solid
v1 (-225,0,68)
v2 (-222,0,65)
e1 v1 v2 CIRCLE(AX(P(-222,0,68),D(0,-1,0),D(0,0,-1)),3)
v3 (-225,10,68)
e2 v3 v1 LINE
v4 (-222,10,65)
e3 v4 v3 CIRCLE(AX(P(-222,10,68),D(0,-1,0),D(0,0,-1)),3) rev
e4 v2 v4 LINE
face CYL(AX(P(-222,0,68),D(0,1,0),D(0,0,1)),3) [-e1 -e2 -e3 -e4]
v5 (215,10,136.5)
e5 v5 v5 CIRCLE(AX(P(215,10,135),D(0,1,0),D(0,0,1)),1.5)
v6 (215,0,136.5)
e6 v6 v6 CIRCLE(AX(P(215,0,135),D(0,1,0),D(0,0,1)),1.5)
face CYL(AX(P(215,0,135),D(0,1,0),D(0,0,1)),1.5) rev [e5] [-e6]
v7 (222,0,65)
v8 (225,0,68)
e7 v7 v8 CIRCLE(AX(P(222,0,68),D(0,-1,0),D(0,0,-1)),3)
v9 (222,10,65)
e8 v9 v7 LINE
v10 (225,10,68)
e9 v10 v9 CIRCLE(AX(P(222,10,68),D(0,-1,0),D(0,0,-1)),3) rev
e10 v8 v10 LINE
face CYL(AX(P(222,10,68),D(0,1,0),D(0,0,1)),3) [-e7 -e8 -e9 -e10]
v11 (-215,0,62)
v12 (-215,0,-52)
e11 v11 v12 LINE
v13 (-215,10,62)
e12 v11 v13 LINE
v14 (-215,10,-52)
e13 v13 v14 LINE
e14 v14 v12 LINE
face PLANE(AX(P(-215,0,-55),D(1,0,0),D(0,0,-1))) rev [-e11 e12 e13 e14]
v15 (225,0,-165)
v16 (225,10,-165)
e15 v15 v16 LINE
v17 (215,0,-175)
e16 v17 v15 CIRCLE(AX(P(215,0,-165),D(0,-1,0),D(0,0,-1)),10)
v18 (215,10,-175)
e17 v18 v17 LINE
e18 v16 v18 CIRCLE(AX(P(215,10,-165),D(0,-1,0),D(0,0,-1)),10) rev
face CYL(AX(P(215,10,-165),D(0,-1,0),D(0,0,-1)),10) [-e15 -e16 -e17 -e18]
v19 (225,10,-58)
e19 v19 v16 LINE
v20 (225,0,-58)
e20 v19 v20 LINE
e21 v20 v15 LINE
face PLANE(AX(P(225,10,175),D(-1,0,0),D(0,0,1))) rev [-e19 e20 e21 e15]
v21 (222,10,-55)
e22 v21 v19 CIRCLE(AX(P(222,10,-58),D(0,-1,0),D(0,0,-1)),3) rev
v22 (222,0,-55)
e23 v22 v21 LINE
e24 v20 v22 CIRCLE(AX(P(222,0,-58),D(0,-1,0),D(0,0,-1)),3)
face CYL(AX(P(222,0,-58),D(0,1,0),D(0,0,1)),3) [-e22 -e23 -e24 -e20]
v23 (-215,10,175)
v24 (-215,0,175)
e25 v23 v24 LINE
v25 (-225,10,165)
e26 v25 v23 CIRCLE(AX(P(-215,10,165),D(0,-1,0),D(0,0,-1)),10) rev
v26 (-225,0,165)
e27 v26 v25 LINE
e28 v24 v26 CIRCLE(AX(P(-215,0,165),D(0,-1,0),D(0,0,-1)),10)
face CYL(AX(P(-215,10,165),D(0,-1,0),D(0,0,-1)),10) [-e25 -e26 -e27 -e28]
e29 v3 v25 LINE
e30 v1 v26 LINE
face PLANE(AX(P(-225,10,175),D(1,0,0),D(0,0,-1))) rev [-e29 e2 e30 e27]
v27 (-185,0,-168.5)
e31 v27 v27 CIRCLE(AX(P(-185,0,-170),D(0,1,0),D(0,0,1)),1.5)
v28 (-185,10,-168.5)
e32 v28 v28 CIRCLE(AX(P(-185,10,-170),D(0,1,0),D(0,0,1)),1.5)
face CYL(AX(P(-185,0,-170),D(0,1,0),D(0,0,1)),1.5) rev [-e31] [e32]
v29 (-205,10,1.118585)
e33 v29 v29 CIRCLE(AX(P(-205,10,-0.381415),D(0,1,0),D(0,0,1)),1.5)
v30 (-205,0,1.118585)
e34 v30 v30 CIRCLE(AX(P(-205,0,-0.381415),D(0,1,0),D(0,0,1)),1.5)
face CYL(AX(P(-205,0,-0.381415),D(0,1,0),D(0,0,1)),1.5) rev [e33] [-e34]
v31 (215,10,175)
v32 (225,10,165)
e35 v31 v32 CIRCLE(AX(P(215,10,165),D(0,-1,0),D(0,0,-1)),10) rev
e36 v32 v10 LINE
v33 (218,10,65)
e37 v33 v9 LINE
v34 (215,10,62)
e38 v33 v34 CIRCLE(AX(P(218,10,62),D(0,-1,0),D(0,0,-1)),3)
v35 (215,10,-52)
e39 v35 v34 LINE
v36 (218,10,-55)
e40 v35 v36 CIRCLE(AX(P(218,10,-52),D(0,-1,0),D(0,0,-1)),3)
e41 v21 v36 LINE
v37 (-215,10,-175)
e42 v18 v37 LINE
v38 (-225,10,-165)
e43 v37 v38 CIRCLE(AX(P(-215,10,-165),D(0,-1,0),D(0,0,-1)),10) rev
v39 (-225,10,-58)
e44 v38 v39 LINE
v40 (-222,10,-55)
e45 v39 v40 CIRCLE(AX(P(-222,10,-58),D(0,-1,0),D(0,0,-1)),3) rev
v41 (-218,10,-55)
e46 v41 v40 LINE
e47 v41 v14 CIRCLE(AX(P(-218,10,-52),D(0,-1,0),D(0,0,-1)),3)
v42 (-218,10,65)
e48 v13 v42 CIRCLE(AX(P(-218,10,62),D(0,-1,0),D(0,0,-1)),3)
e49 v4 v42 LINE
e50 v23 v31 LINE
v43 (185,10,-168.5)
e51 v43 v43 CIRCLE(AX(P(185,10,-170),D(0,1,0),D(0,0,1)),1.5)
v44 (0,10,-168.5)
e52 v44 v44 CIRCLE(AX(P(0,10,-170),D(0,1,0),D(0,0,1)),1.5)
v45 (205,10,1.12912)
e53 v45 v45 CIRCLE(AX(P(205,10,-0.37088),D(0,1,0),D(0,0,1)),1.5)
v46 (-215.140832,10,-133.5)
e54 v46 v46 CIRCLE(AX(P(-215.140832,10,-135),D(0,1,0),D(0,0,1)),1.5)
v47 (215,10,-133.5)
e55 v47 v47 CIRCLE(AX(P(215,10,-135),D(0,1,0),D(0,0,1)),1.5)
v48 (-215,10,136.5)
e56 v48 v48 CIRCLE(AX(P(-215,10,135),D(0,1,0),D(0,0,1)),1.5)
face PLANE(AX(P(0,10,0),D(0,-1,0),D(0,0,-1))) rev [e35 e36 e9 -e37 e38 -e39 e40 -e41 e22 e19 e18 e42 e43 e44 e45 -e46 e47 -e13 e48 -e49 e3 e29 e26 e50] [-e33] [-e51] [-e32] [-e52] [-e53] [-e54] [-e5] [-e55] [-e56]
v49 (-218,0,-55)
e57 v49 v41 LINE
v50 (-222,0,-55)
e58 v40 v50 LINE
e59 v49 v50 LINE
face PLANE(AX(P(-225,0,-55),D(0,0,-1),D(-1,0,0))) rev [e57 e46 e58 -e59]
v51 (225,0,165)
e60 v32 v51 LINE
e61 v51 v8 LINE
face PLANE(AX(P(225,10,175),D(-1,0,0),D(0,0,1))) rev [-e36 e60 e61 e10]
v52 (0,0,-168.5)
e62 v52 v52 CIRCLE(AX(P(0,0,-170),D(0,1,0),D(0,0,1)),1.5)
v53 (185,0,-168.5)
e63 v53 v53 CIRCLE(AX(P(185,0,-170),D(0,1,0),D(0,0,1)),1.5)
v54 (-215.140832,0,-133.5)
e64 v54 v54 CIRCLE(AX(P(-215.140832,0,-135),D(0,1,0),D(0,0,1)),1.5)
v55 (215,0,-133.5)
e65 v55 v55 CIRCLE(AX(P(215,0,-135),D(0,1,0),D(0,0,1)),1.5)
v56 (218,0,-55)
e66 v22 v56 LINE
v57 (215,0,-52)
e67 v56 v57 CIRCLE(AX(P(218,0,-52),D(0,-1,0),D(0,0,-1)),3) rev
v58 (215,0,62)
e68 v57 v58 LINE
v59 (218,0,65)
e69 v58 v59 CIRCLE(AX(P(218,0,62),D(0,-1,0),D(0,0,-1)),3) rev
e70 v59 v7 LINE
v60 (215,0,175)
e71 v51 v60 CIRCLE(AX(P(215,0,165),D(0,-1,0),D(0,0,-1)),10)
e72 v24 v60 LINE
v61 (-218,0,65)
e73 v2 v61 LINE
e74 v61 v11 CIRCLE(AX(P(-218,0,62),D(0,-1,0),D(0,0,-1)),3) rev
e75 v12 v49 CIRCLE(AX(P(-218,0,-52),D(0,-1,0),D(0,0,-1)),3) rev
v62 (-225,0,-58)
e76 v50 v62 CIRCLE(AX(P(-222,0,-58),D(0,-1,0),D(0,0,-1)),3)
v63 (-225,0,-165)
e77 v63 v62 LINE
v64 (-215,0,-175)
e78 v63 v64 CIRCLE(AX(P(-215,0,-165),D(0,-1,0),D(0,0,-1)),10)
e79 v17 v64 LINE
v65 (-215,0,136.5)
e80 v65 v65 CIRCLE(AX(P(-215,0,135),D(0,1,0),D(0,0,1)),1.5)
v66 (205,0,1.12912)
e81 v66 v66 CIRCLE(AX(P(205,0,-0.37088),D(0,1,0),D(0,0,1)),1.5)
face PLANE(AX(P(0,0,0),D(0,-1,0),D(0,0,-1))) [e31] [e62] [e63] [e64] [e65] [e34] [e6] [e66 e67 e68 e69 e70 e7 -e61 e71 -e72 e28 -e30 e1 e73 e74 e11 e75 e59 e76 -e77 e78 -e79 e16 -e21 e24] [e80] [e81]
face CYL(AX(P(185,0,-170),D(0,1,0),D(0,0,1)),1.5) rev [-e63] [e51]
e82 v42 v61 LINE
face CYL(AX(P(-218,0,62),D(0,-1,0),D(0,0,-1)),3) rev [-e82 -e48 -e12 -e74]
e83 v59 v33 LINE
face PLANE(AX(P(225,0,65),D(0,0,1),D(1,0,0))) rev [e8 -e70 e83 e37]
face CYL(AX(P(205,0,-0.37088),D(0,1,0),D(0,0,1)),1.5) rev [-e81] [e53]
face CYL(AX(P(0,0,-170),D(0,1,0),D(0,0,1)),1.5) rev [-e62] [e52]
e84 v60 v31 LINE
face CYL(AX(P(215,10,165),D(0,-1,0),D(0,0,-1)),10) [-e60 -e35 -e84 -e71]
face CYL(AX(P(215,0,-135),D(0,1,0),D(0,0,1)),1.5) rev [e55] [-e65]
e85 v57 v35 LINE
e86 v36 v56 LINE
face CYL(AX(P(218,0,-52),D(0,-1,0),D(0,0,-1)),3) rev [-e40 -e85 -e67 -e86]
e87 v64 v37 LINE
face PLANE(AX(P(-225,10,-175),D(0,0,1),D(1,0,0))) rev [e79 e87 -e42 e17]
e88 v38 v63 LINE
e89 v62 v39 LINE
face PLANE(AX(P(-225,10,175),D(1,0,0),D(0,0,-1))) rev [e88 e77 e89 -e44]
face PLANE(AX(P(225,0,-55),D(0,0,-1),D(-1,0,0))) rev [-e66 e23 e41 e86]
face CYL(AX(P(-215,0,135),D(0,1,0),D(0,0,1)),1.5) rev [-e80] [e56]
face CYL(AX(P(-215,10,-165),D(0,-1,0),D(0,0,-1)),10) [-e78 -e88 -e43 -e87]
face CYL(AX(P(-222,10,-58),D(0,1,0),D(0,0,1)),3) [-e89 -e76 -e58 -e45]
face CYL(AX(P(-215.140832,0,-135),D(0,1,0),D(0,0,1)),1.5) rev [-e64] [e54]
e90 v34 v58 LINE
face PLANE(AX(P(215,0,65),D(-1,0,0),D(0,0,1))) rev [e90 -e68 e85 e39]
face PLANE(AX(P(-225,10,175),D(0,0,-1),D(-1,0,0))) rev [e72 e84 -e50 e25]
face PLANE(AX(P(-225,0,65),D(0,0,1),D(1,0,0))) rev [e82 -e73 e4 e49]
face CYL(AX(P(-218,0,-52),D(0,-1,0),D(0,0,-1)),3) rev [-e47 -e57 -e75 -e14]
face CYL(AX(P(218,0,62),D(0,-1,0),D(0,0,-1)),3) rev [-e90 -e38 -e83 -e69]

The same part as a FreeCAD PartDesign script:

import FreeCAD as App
import Part
import Sketcher
Q = App.Units.Quantity


def edges_at(feature, points):
    """Names of the edges that pass closest to the given points."""
    edges = feature.Shape.Edges
    near = lambda p: min(range(len(edges)), key=lambda i: edges[i].distToShape(Part.Vertex(*p))[0])
    return sorted({f"Edge{near(p) + 1}" for p in points})

doc = App.newDocument("Part")
body = doc.addObject("PartDesign::Body", "Body")

# Sketch on XZ plane
sketch1 = doc.addObject("Sketcher::SketchObject", "Sketch")
body.addObject(sketch1)
sketch1.AttachmentSupport = (doc.XZ_Plane, [""])
sketch1.MapMode = "FlatFace"
sketch1.addGeometry([
    Part.LineSegment(App.Vector(-225, -175, 0), App.Vector(-225, 175, 0)),
    Part.LineSegment(App.Vector(-225, 175, 0), App.Vector(225, 175, 0)),
    Part.LineSegment(App.Vector(225, 175, 0), App.Vector(225, -175, 0)),
    Part.LineSegment(App.Vector(225, -175, 0), App.Vector(-225, -175, 0)),
], False)
sketch1.addConstraint([
    Sketcher.Constraint("Coincident", 0, 2, 1, 1),
    Sketcher.Constraint("Coincident", 1, 2, 2, 1),
    Sketcher.Constraint("Coincident", 2, 2, 3, 1),
    Sketcher.Constraint("Coincident", 3, 2, 0, 1),
    Sketcher.Constraint("Vertical", 0),
    Sketcher.Constraint("Horizontal", 1),
    Sketcher.Constraint("Vertical", 2),
    Sketcher.Constraint("Horizontal", 3),
    Sketcher.Constraint("Symmetric", 0, 2, 2, 2, -1, 1),
    Sketcher.Constraint("DistanceX", 1, 1, 1, 2, Q("450 mm")),
    Sketcher.Constraint("DistanceY", 0, 1, 0, 2, Q("350 mm")),
])
pad1 = doc.addObject("PartDesign::Pad", "Pad")
body.addObject(pad1)
pad1.Profile = sketch1
pad1.Length = 10
pad1.Reversed = True

# Sketch on XZ plane
sketch2 = doc.addObject("Sketcher::SketchObject", "Sketch001")
body.addObject(sketch2)
sketch2.AttachmentSupport = (doc.XZ_Plane, [""])
sketch2.MapMode = "FlatFace"
sketch2.AttachmentOffset = App.Placement(App.Vector(0, 0, -10), App.Rotation())
sketch2.addGeometry([
    Part.Circle(App.Vector(-215, 135, 0), App.Vector(0, 0, 1), 3),  # 0
    Part.Circle(App.Vector(-205, -0.4, 0), App.Vector(0, 0, 1), 3),  # 1
    Part.Circle(App.Vector(-215, -135, 0), App.Vector(0, 0, 1), 3),  # 2
    Part.Circle(App.Vector(215, -135, 0), App.Vector(0, 0, 1), 3),  # 3
    Part.Circle(App.Vector(205, 0, 0), App.Vector(0, 0, 1), 3),  # 4
    Part.Circle(App.Vector(215, 135, 0), App.Vector(0, 0, 1), 3),  # 5
    Part.Circle(App.Vector(-185, -170, 0), App.Vector(0, 0, 1), 3),  # 6
    Part.Circle(App.Vector(0, -170, 0), App.Vector(0, 0, 1), 3),  # 7
    Part.Circle(App.Vector(185, -170, 0), App.Vector(0, 0, 1), 3),  # 8
], False)
sketch2.addConstraint([
    Sketcher.Constraint("Equal", 0, 1),
    Sketcher.Constraint("Equal", 1, 2),
    Sketcher.Constraint("Equal", 2, 3),
    Sketcher.Constraint("Equal", 3, 4),
    Sketcher.Constraint("Equal", 4, 5),
    Sketcher.Constraint("Equal", 5, 6),
    Sketcher.Constraint("Equal", 6, 7),
    Sketcher.Constraint("Equal", 7, 8),
    Sketcher.Constraint("Symmetric", 0, 3, 3, 3, -1, 1),
    Sketcher.Constraint("Symmetric", 2, 3, 5, 3, -1, 1),
    Sketcher.Constraint("Symmetric", 2, 3, 3, 3, -2),
    Sketcher.Constraint("Symmetric", 6, 3, 8, 3, -2),
    Sketcher.Constraint("PointOnObject", 4, 3, -1),
    Sketcher.Constraint("PointOnObject", 7, 3, -2),
    Sketcher.Constraint("Horizontal", 6, 3, 7, 3),
    Sketcher.Constraint("Diameter", 0, Q("6 mm")),
    Sketcher.Constraint("DistanceX", 0, 3, -1, 1, Q("215 mm")),
    Sketcher.Constraint("DistanceY", -1, 1, 0, 3, Q("135 mm")),
    Sketcher.Constraint("DistanceX", 1, 3, -1, 1, Q("205 mm")),
    Sketcher.Constraint("DistanceX", -1, 1, 4, 3, Q("205 mm")),
    Sketcher.Constraint("DistanceX", 6, 3, -1, 1, Q("185 mm")),
    Sketcher.Constraint("DistanceY", 6, 3, -1, 1, Q("170 mm")),
    Sketcher.Constraint("DistanceY", 1, 3, -1, 1, Q("0.37088 mm")),
])
pocket1 = doc.addObject("PartDesign::Pocket", "Pocket")
body.addObject(pocket1)
pocket1.Profile = sketch2
pocket1.Length = 10
pocket1.Reversed = True

# Sketch on XZ plane
sketch3 = doc.addObject("Sketcher::SketchObject", "Sketch002")
body.addObject(sketch3)
sketch3.AttachmentSupport = (doc.XZ_Plane, [""])
sketch3.MapMode = "FlatFace"
sketch3.AttachmentOffset = App.Placement(App.Vector(0, 0, -10), App.Rotation())
sketch3.addGeometry([
    Part.LineSegment(App.Vector(-225, -55, 0), App.Vector(-225, 65, 0)),  # 0
    Part.LineSegment(App.Vector(-225, 65, 0), App.Vector(-215, 65, 0)),  # 1
    Part.LineSegment(App.Vector(-215, 65, 0), App.Vector(-215, -55, 0)),  # 2
    Part.LineSegment(App.Vector(-215, -55, 0), App.Vector(-225, -55, 0)),  # 3
    Part.LineSegment(App.Vector(215, -55, 0), App.Vector(215, 65, 0)),  # 4
    Part.LineSegment(App.Vector(215, 65, 0), App.Vector(225, 65, 0)),  # 5
    Part.LineSegment(App.Vector(225, 65, 0), App.Vector(225, -55, 0)),  # 6
    Part.LineSegment(App.Vector(225, -55, 0), App.Vector(215, -55, 0)),  # 7
], False)
sketch3.addConstraint([
    Sketcher.Constraint("Coincident", 0, 2, 1, 1),
    Sketcher.Constraint("Coincident", 1, 2, 2, 1),
    Sketcher.Constraint("Coincident", 2, 2, 3, 1),
    Sketcher.Constraint("Coincident", 3, 2, 0, 1),
    Sketcher.Constraint("Coincident", 4, 2, 5, 1),
    Sketcher.Constraint("Coincident", 5, 2, 6, 1),
    Sketcher.Constraint("Coincident", 6, 2, 7, 1),
    Sketcher.Constraint("Coincident", 7, 2, 4, 1),
    Sketcher.Constraint("Vertical", 0),
    Sketcher.Constraint("Horizontal", 1),
    Sketcher.Constraint("Vertical", 2),
    Sketcher.Constraint("Horizontal", 3),
    Sketcher.Constraint("Vertical", 4),
    Sketcher.Constraint("Horizontal", 5),
    Sketcher.Constraint("Vertical", 6),
    Sketcher.Constraint("Horizontal", 7),
    Sketcher.Constraint("Symmetric", 1, 2, 4, 2, -2),
    Sketcher.Constraint("Symmetric", 3, 2, 6, 2, -2),
    Sketcher.Constraint("DistanceX", 1, 1, 1, 2, Q("10 mm")),
    Sketcher.Constraint("DistanceY", 0, 1, 0, 2, Q("120 mm")),
    Sketcher.Constraint("DistanceX", 0, 2, -1, 1, Q("225 mm")),
    Sketcher.Constraint("DistanceY", -1, 1, 0, 2, Q("65 mm")),
])
pocket2 = doc.addObject("PartDesign::Pocket", "Pocket001")
body.addObject(pocket2)
pocket2.Profile = sketch3
pocket2.Length = 10
pocket2.Reversed = True
doc.recompute()

fillet = doc.addObject("PartDesign::Fillet", "Fillet")
body.addObject(fillet)
fillet.Base = (pocket2, edges_at(pocket2, [
    (-215, 5, -55),
    (-215, 5, 65),
    (215, 5, 65),
    (215, 5, -55),
]))
fillet.Radius = 3
doc.recompute()

fillet2 = doc.addObject("PartDesign::Fillet", "Fillet001")
body.addObject(fillet2)
fillet2.Base = (fillet, edges_at(fillet, [
    (-225, 5, 65),
    (-225, 5, -55),
    (225, 5, -55),
    (225, 5, 65),
]))
fillet2.Radius = 3
doc.recompute()

fillet3 = doc.addObject("PartDesign::Fillet", "Fillet002")
body.addObject(fillet3)
fillet3.Base = (fillet2, edges_at(fillet2, [
    (-225, 5, -175),
    (225, 5, -175),
    (225, 5, 175),
    (-225, 5, 175),
]))
fillet3.Radius = 10

# Sketch on XZ plane
sketch4 = doc.addObject("Sketcher::SketchObject", "Sketch003")
body.addObject(sketch4)
sketch4.AttachmentSupport = (doc.XZ_Plane, [""])
sketch4.MapMode = "FlatFace"
sketch4.AttachmentOffset = App.Placement(App.Vector(0, 0, -10), App.Rotation())
sketch4.addGeometry(Part.Circle(App.Vector(-215, -135, 0), App.Vector(0, 0, 1), 3), False)
sketch4.addConstraint([
    Sketcher.Constraint("Diameter", 0, Q("6 mm")),
    Sketcher.Constraint("DistanceX", 0, 3, -1, 1, Q("215 mm")),
    Sketcher.Constraint("DistanceY", 0, 3, -1, 1, Q("135 mm")),
])
pad2 = doc.addObject("PartDesign::Pad", "Pad001")
body.addObject(pad2)
pad2.Profile = sketch4
pad2.Length = 10

# Sketch on XZ plane
sketch5 = doc.addObject("Sketcher::SketchObject", "Sketch004")
body.addObject(sketch5)
sketch5.AttachmentSupport = (doc.XZ_Plane, [""])
sketch5.MapMode = "FlatFace"
sketch5.AttachmentOffset = App.Placement(App.Vector(0, 0, -10), App.Rotation())
sketch5.addGeometry([
    Part.Circle(App.Vector(-185, -170, 0), App.Vector(0, 0, 1), 3),  # 0
    Part.Circle(App.Vector(0, -170, 0), App.Vector(0, 0, 1), 3),  # 1
    Part.Circle(App.Vector(185, -170, 0), App.Vector(0, 0, 1), 3),  # 2
    Part.Circle(App.Vector(215, -135, 0), App.Vector(0, 0, 1), 3),  # 3
    Part.Circle(App.Vector(205, 0, 0), App.Vector(0, 0, 1), 3),  # 4
    Part.Circle(App.Vector(215, 135, 0), App.Vector(0, 0, 1), 3),  # 5
    Part.Circle(App.Vector(-215, 135, 0), App.Vector(0, 0, 1), 3),  # 6
    Part.Circle(App.Vector(-205, -0.4, 0), App.Vector(0, 0, 1), 3),  # 7
], False)
sketch5.addConstraint([
    Sketcher.Constraint("Equal", 0, 1),
    Sketcher.Constraint("Equal", 1, 2),
    Sketcher.Constraint("Equal", 2, 3),
    Sketcher.Constraint("Equal", 3, 4),
    Sketcher.Constraint("Equal", 4, 5),
    Sketcher.Constraint("Equal", 5, 6),
    Sketcher.Constraint("Equal", 6, 7),
    Sketcher.Constraint("Symmetric", 3, 3, 6, 3, -1, 1),
    Sketcher.Constraint("Symmetric", 0, 3, 2, 3, -2),
    Sketcher.Constraint("Symmetric", 5, 3, 6, 3, -2),
    Sketcher.Constraint("PointOnObject", 1, 3, -2),
    Sketcher.Constraint("PointOnObject", 4, 3, -1),
    Sketcher.Constraint("Horizontal", 0, 3, 1, 3),
    Sketcher.Constraint("Diameter", 0, Q("6 mm")),
    Sketcher.Constraint("DistanceX", 0, 3, -1, 1, Q("185 mm")),
    Sketcher.Constraint("DistanceY", 0, 3, -1, 1, Q("170 mm")),
    Sketcher.Constraint("DistanceX", -1, 1, 3, 3, Q("215 mm")),
    Sketcher.Constraint("DistanceY", 3, 3, -1, 1, Q("135 mm")),
    Sketcher.Constraint("DistanceX", -1, 1, 4, 3, Q("205 mm")),
    Sketcher.Constraint("DistanceX", 7, 3, -1, 1, Q("205 mm")),
    Sketcher.Constraint("DistanceY", 7, 3, -1, 1, Q("0.37088 mm")),
])
pad3 = doc.addObject("PartDesign::Pad", "Pad002")
body.addObject(pad3)
pad3.Profile = sketch5
pad3.Length = 10

# Sketch on XZ plane
sketch6 = doc.addObject("Sketcher::SketchObject", "Sketch005")
body.addObject(sketch6)
sketch6.AttachmentSupport = (doc.XZ_Plane, [""])
sketch6.MapMode = "FlatFace"
sketch6.AttachmentOffset = App.Placement(App.Vector(0, 0, -10), App.Rotation())
sketch6.addGeometry([
    Part.Circle(App.Vector(-185, -170, 0), App.Vector(0, 0, 1), 1.5),  # 0
    Part.Circle(App.Vector(-215.1, -135, 0), App.Vector(0, 0, 1), 1.5),  # 1
    Part.Circle(App.Vector(-205, -0.4, 0), App.Vector(0, 0, 1), 1.5),  # 2
    Part.Circle(App.Vector(-215, 135, 0), App.Vector(0, 0, 1), 1.5),  # 3
    Part.Circle(App.Vector(215, 135, 0), App.Vector(0, 0, 1), 1.5),  # 4
    Part.Circle(App.Vector(205, -0.4, 0), App.Vector(0, 0, 1), 1.5),  # 5
    Part.Circle(App.Vector(215, -135, 0), App.Vector(0, 0, 1), 1.5),  # 6
    Part.Circle(App.Vector(0, -170, 0), App.Vector(0, 0, 1), 1.5),  # 7
    Part.Circle(App.Vector(185, -170, 0), App.Vector(0, 0, 1), 1.5),  # 8
], False)
sketch6.addConstraint([
    Sketcher.Constraint("Equal", 0, 1),
    Sketcher.Constraint("Equal", 1, 2),
    Sketcher.Constraint("Equal", 2, 3),
    Sketcher.Constraint("Equal", 3, 4),
    Sketcher.Constraint("Equal", 4, 5),
    Sketcher.Constraint("Equal", 5, 6),
    Sketcher.Constraint("Equal", 6, 7),
    Sketcher.Constraint("Equal", 7, 8),
    Sketcher.Constraint("Symmetric", 3, 3, 6, 3, -1, 1),
    Sketcher.Constraint("Symmetric", 3, 3, 4, 3, -2),
    Sketcher.Constraint("Symmetric", 0, 3, 8, 3, -2),
    Sketcher.Constraint("PointOnObject", 7, 3, -2),
    Sketcher.Constraint("Horizontal", 1, 3, 6, 3),
    Sketcher.Constraint("Horizontal", 0, 3, 7, 3),
    Sketcher.Constraint("Diameter", 0, Q("3 mm")),
    Sketcher.Constraint("DistanceX", 0, 3, -1, 1, Q("185 mm")),
    Sketcher.Constraint("DistanceY", 0, 3, -1, 1, Q("170 mm")),
    Sketcher.Constraint("DistanceY", 1, 3, -1, 1, Q("135 mm")),
    Sketcher.Constraint("DistanceX", 2, 3, -1, 1, Q("205 mm")),
    Sketcher.Constraint("DistanceX", 3, 3, -1, 1, Q("215 mm")),
    Sketcher.Constraint("DistanceX", -1, 1, 5, 3, Q("205 mm")),
    Sketcher.Constraint("DistanceX", 1, 3, -1, 1, Q("215.140832 mm")),
    Sketcher.Constraint("DistanceY", 5, 3, -1, 1, Q("0.37088 mm")),
    Sketcher.Constraint("DistanceY", 2, 3, -1, 1, Q("0.381415 mm")),
])
pocket3 = doc.addObject("PartDesign::Pocket", "Pocket002")
body.addObject(pocket3)
pocket3.Profile = sketch6
pocket3.Length = 10
pocket3.Reversed = True

doc.recompute()
